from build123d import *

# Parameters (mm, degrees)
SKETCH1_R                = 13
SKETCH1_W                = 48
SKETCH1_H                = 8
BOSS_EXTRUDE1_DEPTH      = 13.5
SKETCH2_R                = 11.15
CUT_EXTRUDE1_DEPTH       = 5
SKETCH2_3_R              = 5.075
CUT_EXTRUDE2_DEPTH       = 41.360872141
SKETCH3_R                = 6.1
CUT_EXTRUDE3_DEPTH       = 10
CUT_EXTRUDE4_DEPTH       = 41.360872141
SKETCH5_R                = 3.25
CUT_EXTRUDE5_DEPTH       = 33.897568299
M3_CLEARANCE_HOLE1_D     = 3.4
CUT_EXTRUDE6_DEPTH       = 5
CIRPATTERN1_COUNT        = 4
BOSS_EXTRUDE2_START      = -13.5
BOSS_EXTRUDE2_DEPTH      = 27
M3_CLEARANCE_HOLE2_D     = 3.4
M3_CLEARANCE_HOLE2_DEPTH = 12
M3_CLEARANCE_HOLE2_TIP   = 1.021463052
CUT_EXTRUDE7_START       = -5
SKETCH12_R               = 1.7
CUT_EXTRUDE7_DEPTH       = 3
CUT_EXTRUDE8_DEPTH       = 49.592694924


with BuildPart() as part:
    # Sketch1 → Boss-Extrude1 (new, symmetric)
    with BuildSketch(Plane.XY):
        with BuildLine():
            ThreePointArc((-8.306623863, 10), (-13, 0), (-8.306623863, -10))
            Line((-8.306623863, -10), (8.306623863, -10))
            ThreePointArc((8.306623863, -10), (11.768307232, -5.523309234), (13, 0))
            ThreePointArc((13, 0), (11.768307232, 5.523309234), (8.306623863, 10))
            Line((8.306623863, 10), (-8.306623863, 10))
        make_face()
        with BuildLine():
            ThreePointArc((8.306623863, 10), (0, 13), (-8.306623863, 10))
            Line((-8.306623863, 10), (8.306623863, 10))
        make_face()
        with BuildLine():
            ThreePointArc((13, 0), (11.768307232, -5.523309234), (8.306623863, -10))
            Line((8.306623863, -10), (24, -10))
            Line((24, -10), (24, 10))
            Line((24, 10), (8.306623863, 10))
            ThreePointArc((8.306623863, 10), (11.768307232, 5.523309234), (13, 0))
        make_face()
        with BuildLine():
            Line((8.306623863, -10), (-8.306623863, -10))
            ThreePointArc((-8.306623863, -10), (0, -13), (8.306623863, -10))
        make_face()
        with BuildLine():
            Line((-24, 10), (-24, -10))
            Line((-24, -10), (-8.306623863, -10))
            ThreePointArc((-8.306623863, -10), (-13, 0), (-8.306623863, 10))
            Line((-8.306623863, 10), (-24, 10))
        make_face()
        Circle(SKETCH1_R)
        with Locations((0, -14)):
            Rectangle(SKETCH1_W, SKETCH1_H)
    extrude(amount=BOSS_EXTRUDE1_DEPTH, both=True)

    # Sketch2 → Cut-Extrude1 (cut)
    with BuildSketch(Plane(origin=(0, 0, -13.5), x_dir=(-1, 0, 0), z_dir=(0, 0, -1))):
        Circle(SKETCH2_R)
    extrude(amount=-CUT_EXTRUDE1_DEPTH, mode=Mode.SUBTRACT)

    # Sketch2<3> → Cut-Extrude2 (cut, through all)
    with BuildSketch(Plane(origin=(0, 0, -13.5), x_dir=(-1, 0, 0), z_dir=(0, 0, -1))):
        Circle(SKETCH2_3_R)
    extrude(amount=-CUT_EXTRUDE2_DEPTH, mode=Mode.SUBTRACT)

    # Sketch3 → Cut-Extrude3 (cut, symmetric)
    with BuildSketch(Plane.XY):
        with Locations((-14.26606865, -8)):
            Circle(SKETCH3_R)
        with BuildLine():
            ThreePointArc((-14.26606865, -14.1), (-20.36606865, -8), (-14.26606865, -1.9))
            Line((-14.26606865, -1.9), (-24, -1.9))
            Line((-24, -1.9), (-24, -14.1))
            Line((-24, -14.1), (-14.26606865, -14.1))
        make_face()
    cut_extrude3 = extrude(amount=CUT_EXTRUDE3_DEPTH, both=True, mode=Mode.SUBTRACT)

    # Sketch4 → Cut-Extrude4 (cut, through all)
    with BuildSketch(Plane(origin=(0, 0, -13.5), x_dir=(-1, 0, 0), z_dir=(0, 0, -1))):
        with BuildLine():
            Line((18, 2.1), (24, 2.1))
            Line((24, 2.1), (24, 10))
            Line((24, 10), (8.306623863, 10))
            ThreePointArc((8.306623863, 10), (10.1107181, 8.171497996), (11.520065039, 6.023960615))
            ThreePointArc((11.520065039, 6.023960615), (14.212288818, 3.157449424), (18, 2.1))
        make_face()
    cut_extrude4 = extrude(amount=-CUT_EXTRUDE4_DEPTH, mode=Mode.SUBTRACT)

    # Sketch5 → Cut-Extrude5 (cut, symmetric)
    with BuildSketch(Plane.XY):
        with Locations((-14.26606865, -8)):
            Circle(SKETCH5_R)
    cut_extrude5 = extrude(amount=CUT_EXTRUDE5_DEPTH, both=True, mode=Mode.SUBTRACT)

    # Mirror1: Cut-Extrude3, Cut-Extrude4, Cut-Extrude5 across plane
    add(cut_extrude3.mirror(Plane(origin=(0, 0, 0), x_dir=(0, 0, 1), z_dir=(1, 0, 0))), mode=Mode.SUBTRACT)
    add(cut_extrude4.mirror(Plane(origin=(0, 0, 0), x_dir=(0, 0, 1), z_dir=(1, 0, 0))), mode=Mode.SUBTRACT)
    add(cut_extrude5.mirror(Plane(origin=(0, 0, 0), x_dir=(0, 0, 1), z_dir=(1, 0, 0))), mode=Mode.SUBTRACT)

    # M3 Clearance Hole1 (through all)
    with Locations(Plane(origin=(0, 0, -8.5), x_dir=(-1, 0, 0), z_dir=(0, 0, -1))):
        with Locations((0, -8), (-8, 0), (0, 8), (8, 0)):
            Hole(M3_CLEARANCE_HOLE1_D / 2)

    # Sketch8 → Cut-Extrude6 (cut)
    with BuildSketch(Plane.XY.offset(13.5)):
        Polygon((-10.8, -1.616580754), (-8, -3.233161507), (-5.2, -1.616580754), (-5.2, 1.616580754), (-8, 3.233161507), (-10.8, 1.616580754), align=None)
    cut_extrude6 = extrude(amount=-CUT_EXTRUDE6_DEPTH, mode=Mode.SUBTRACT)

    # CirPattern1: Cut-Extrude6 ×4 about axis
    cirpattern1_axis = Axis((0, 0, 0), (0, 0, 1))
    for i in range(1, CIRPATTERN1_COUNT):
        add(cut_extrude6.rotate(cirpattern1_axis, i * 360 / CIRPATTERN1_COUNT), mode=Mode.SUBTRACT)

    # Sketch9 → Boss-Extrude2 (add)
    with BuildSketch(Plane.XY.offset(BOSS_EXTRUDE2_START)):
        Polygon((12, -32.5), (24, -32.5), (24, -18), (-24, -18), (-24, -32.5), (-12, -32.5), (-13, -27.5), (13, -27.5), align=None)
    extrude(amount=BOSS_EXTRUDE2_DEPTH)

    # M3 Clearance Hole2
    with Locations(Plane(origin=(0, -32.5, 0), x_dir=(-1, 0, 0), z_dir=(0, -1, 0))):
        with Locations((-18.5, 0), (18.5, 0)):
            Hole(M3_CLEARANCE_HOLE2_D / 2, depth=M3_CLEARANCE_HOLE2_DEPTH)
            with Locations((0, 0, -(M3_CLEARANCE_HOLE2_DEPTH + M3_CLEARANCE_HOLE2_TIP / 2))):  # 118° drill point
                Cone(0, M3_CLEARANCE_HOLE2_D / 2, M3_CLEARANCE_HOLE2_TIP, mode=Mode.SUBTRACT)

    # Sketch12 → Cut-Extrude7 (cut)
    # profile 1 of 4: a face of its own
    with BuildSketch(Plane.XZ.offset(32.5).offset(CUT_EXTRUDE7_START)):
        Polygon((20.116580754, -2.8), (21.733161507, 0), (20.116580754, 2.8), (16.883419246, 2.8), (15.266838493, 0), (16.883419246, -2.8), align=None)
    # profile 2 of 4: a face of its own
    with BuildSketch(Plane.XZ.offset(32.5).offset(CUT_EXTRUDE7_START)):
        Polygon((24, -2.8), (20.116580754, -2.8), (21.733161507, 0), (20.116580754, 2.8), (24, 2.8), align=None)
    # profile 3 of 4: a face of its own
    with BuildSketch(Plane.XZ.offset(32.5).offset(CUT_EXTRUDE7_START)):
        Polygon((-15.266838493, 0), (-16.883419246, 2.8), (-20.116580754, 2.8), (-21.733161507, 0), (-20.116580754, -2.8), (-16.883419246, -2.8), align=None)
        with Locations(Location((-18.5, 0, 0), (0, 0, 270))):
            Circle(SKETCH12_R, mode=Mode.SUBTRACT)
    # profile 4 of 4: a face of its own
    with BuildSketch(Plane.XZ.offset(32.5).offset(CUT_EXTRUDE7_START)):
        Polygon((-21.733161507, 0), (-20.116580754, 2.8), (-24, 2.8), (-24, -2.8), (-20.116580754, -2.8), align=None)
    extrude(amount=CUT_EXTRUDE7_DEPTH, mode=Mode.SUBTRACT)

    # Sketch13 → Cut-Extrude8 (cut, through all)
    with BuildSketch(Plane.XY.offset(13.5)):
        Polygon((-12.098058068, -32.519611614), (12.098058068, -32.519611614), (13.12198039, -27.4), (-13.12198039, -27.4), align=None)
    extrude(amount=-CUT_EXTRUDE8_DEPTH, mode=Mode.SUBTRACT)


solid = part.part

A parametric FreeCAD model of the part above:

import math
import FreeCAD as App
import Part
import Sketcher
Q = App.Units.Quantity


def add_polygon(sketch, points):
    """Adds a closed chain of lines whose ends are joined by coincident constraints."""
    first, n = sketch.GeometryCount, len(points)
    for a, b in zip(points, points[1:] + points[:1]):
        sketch.addGeometry(Part.LineSegment(App.Vector(*a, 0), App.Vector(*b, 0)), False)
    for i in range(n):
        sketch.addConstraint(Sketcher.Constraint("Coincident", first + i, 2, first + (i + 1) % n, 1))

doc = App.newDocument("Part")
body = doc.addObject("PartDesign::Body", "Body")

# Sketch on XY plane
sketch1 = body.newObject("Sketcher::SketchObject", "Sketch")
sketch1.AttachmentSupport = (doc.getObject("XY_Plane"), [""])
sketch1.MapMode = "FlatFace"
sketch1.addGeometry(Part.LineSegment(App.Vector(24, 10, 0), App.Vector(8.306624, 10, 0)), False)
sketch1.addGeometry(Part.ArcOfCircle(Part.Circle(App.Vector(0, 0, 0), App.Vector(0, 0, 1), 13), math.radians(50.284863), math.radians(129.715137)), False)
sketch1.addGeometry(Part.LineSegment(App.Vector(-8.306624, 10, 0), App.Vector(-24, 10, 0)), False)
sketch1.addGeometry(Part.LineSegment(App.Vector(-24, 10, 0), App.Vector(-24, -18, 0)), False)
sketch1.addGeometry(Part.LineSegment(App.Vector(-24, -18, 0), App.Vector(24, -18, 0)), False)
sketch1.addGeometry(Part.LineSegment(App.Vector(24, -18, 0), App.Vector(24, 10, 0)), False)
sketch1.addConstraint(Sketcher.Constraint("Coincident", 0, 2, 1, 1))
sketch1.addConstraint(Sketcher.Constraint("Coincident", 1, 2, 2, 1))
sketch1.addConstraint(Sketcher.Constraint("Coincident", 2, 2, 3, 1))
sketch1.addConstraint(Sketcher.Constraint("Coincident", 3, 2, 4, 1))
sketch1.addConstraint(Sketcher.Constraint("Coincident", 4, 2, 5, 1))
sketch1.addConstraint(Sketcher.Constraint("Coincident", 5, 2, 0, 1))
sketch1.addConstraint(Sketcher.Constraint("Horizontal", 0))
sketch1.addConstraint(Sketcher.Constraint("Horizontal", 2))
sketch1.addConstraint(Sketcher.Constraint("Vertical", 3))
sketch1.addConstraint(Sketcher.Constraint("Horizontal", 4))
sketch1.addConstraint(Sketcher.Constraint("Vertical", 5))
sketch1.addConstraint(Sketcher.Constraint("Coincident", 1, 3, -1, 1))
sketch1.addConstraint(Sketcher.Constraint("Symmetric", 2, 2, 5, 2, -2))
sketch1.addConstraint(Sketcher.Constraint("Radius", 1, 13.0))
sketch1.addConstraint(Sketcher.Constraint("DistanceX", 4, 1, 4, 2, 48.0))
sketch1.addConstraint(Sketcher.Constraint("DistanceY", 3, 2, 3, 1, 28.0))
sketch1.addConstraint(Sketcher.Constraint("DistanceY", -1, 1, 0, 2, 10.0))
pad1 = body.newObject("PartDesign::Pad", "Pad")
pad1.Profile = sketch1
pad1.Length = 27
pad1.Midplane = True

# Sketch on XY plane
sketch2 = body.newObject("Sketcher::SketchObject", "Sketch001")
sketch2.AttachmentSupport = (doc.getObject("XY_Plane"), [""])
sketch2.MapMode = "FlatFace"
sketch2.AttachmentOffset = App.Placement(App.Vector(0, 0, -13.5), App.Rotation())
sketch2.addGeometry(Part.Circle(App.Vector(0, 0, 0), App.Vector(0, 0, 1), 11.15), False)
sketch2.addConstraint(Sketcher.Constraint("Coincident", 0, 3, -1, 1))
sketch2.addConstraint(Sketcher.Constraint("Diameter", 0, 22.3))
pocket1 = body.newObject("PartDesign::Pocket", "Pocket")
pocket1.Profile = sketch2
pocket1.Length = 5
pocket1.Reversed = True

# Sketch on XY plane
sketch3 = body.newObject("Sketcher::SketchObject", "Sketch002")
sketch3.AttachmentSupport = (doc.getObject("XY_Plane"), [""])
sketch3.MapMode = "FlatFace"
sketch3.AttachmentOffset = App.Placement(App.Vector(0, 0, -13.5), App.Rotation())
sketch3.addGeometry(Part.Circle(App.Vector(0, 0, 0), App.Vector(0, 0, 1), 5.075), False)
sketch3.addConstraint(Sketcher.Constraint("Coincident", 0, 3, -1, 1))
sketch3.addConstraint(Sketcher.Constraint("Diameter", 0, 10.15))
pocket2 = body.newObject("PartDesign::Pocket", "Pocket001")
pocket2.Profile = sketch3
pocket2.Type = "ThroughAll"
pocket2.Reversed = True

# Sketch on XY plane
sketch4 = body.newObject("Sketcher::SketchObject", "Sketch003")
sketch4.AttachmentSupport = (doc.getObject("XY_Plane"), [""])
sketch4.MapMode = "FlatFace"
sketch4.addGeometry(Part.LineSegment(App.Vector(-14.266069, -1.9, 0), App.Vector(-24, -1.9, 0)), False)
sketch4.addGeometry(Part.LineSegment(App.Vector(-24, -1.9, 0), App.Vector(-24, -14.1, 0)), False)
sketch4.addGeometry(Part.LineSegment(App.Vector(-24, -14.1, 0), App.Vector(-14.266069, -14.1, 0)), False)
sketch4.addGeometry(Part.ArcOfCircle(Part.Circle(App.Vector(-14.266069, -8, 0), App.Vector(0, 0, 1), 6.1), math.radians(-90), math.radians(90)), False)
sketch4.addConstraint(Sketcher.Constraint("Coincident", 0, 2, 1, 1))
sketch4.addConstraint(Sketcher.Constraint("Coincident", 1, 2, 2, 1))
sketch4.addConstraint(Sketcher.Constraint("Tangent", 2, 2, 3, 1))
sketch4.addConstraint(Sketcher.Constraint("Tangent", 3, 2, 0, 1))
sketch4.addConstraint(Sketcher.Constraint("Horizontal", 0))
sketch4.addConstraint(Sketcher.Constraint("Vertical", 1))
sketch4.addConstraint(Sketcher.Constraint("Horizontal", 2))
sketch4.addConstraint(Sketcher.Constraint("Radius", 3, 6.1))
sketch4.addConstraint(Sketcher.Constraint("DistanceY", 3, 3, -1, 1, 8.0))
sketch4.addConstraint(Sketcher.Constraint("DistanceX", 0, 2, -1, 1, 24.0))
sketch4.addConstraint(Sketcher.Constraint("DistanceX", 0, 2, 0, 1, 9.733931))
pocket3 = body.newObject("PartDesign::Pocket", "Pocket002")
pocket3.Profile = sketch4
pocket3.Length = 20
pocket3.Midplane = True

# Sketch on XY plane
sketch5 = body.newObject("Sketcher::SketchObject", "Sketch004")
sketch5.AttachmentSupport = (doc.getObject("XY_Plane"), [""])
sketch5.MapMode = "FlatFace"
sketch5.AttachmentOffset = App.Placement(App.Vector(0, 0, -13.5), App.Rotation())
sketch5.addGeometry(Part.LineSegment(App.Vector(-18, 2.1, 0), App.Vector(-24, 2.1, 0)), False)
sketch5.addGeometry(Part.LineSegment(App.Vector(-24, 2.1, 0), App.Vector(-24, 10, 0)), False)
sketch5.addGeometry(Part.LineSegment(App.Vector(-24, 10, 0), App.Vector(-8.306624, 10, 0)), False)
sketch5.addGeometry(Part.ArcOfCircle(Part.Circle(App.Vector(0, 0, 0), App.Vector(0, 0, 1), 13), math.radians(129.715137), math.radians(152.394469)), False)
sketch5.addGeometry(Part.ArcOfCircle(Part.Circle(App.Vector(-18, 9.412385, 0), App.Vector(0, 0, 1), 7.312385), math.radians(-90), math.radians(-27.605531)), False)
sketch5.addConstraint(Sketcher.Constraint("Coincident", 0, 2, 1, 1))
sketch5.addConstraint(Sketcher.Constraint("Coincident", 1, 2, 2, 1))
sketch5.addConstraint(Sketcher.Constraint("Coincident", 2, 2, 3, 1))
sketch5.addConstraint(Sketcher.Constraint("Tangent", 3, 2, 4, 2))
sketch5.addConstraint(Sketcher.Constraint("Tangent", 4, 1, 0, 1))
sketch5.addConstraint(Sketcher.Constraint("Horizontal", 0))
sketch5.addConstraint(Sketcher.Constraint("Vertical", 1))
sketch5.addConstraint(Sketcher.Constraint("Horizontal", 2))
sketch5.addConstraint(Sketcher.Constraint("Coincident", 3, 3, -1, 1))
sketch5.addConstraint(Sketcher.Constraint("Radius", 3, 13.0))
sketch5.addConstraint(Sketcher.Constraint("DistanceX", 0, 2, 0, 1, 6.0))
sketch5.addConstraint(Sketcher.Constraint("DistanceY", 1, 1, 1, 2, 7.9))
sketch5.addConstraint(Sketcher.Constraint("DistanceX", 4, 3, -1, 1, 18.0))
sketch5.addConstraint(Sketcher.Constraint("DistanceY", -1, 1, 1, 2, 10.0))
pocket4 = body.newObject("PartDesign::Pocket", "Pocket003")
pocket4.Profile = sketch5
pocket4.Type = "ThroughAll"
pocket4.Reversed = True

# Sketch on XY plane
sketch6 = body.newObject("Sketcher::SketchObject", "Sketch005")
sketch6.AttachmentSupport = (doc.getObject("XY_Plane"), [""])
sketch6.MapMode = "FlatFace"
sketch6.addGeometry(Part.Circle(App.Vector(-14.266069, -8, 0), App.Vector(0, 0, 1), 3.25), False)
sketch6.addConstraint(Sketcher.Constraint("Diameter", 0, 6.5))
sketch6.addConstraint(Sketcher.Constraint("DistanceY", 0, 3, -1, 1, 8.0))
sketch6.addConstraint(Sketcher.Constraint("DistanceX", 0, 3, -1, 1, 14.266069))
pocket5 = body.newObject("PartDesign::Pocket", "Pocket004")
pocket5.Profile = sketch6
pocket5.Length = 67.795137
pocket5.Midplane = True
doc.recompute()

mirrored = body.newObject("PartDesign::Mirrored", "Mirrored")
mirrored.Originals = [pocket3, pocket4, pocket5]
mirrored.MirrorPlane = (doc.getObject("YZ_Plane"), [""])
body.Tip = mirrored

# Sketch on XY plane
sketch7 = body.newObject("Sketcher::SketchObject", "Sketch006")
sketch7.AttachmentSupport = (doc.getObject("XY_Plane"), [""])
sketch7.MapMode = "FlatFace"
sketch7.AttachmentOffset = App.Placement(App.Vector(0, 0, -8.5), App.Rotation())
sketch7.addGeometry(Part.Circle(App.Vector(0, -8, 0), App.Vector(0, 0, 1), 1.7), False)
sketch7.addGeometry(Part.Circle(App.Vector(8, 0, 0), App.Vector(0, 0, 1), 1.7), False)
sketch7.addGeometry(Part.Circle(App.Vector(0, 8, 0), App.Vector(0, 0, 1), 1.7), False)
sketch7.addGeometry(Part.Circle(App.Vector(-8, 0, 0), App.Vector(0, 0, 1), 1.7), False)
sketch7.addConstraint(Sketcher.Constraint("Equal", 0, 1))
sketch7.addConstraint(Sketcher.Constraint("Equal", 1, 2))
sketch7.addConstraint(Sketcher.Constraint("Equal", 2, 3))
sketch7.addConstraint(Sketcher.Constraint("Symmetric", 0, 3, 2, 3, -1, 1))
sketch7.addConstraint(Sketcher.Constraint("Symmetric", 1, 3, 3, 3, -1, 1))
sketch7.addConstraint(Sketcher.Constraint("PointOnObject", 0, 3, -2))
sketch7.addConstraint(Sketcher.Constraint("PointOnObject", 1, 3, -1))
sketch7.addConstraint(Sketcher.Constraint("Diameter", 0, 3.4))
sketch7.addConstraint(Sketcher.Constraint("DistanceY", 0, 3, -1, 1, 8.0))
sketch7.addConstraint(Sketcher.Constraint("DistanceX", -1, 1, 1, 3, 8.0))
doc.recompute()
hole = body.newObject("PartDesign::Hole", "Hole")
hole.Profile = sketch7
hole.ThreadType = "None"
hole.Diameter = 3.4
hole.DepthType = "ThroughAll"
hole.Reversed = True

# Sketch on XY plane
sketch8 = body.newObject("Sketcher::SketchObject", "Sketch007")
sketch8.AttachmentSupport = (doc.getObject("XY_Plane"), [""])
sketch8.MapMode = "FlatFace"
sketch8.AttachmentOffset = App.Placement(App.Vector(0, 0, 13.5), App.Rotation())
add_polygon(sketch8, [(-10.8, -1.616581), (-8, -3.233162), (-5.2, -1.616581), (-5.2, 1.616581), (-8, 3.233162), (-10.8, 1.616581)])  # lines 0-5
sketch8.addConstraint(Sketcher.Constraint("Vertical", 2))
sketch8.addConstraint(Sketcher.Constraint("Vertical", 5))
sketch8.addConstraint(Sketcher.Constraint("Symmetric", 0, 2, 3, 2, -1))
sketch8.addConstraint(Sketcher.Constraint("Parallel", 0, 3))
sketch8.addConstraint(Sketcher.Constraint("Parallel", 1, 4))
sketch8.addConstraint(Sketcher.Constraint("Horizontal", 2, 2, 4, 2))
sketch8.addConstraint(Sketcher.Constraint("Horizontal", 1, 2, 5, 2))
sketch8.addConstraint(Sketcher.Constraint("Angle", 0, Q("-30 deg")))
sketch8.addConstraint(Sketcher.Constraint("DistanceX", 0, 2, -1, 1, 8.0))
sketch8.addConstraint(Sketcher.Constraint("DistanceX", 1, 2, -1, 1, 5.2))
sketch8.addConstraint(Sketcher.Constraint("DistanceY", 2, 1, 2, 2, 3.233162))
pocket6 = body.newObject("PartDesign::Pocket", "Pocket005")
pocket6.Profile = sketch8
pocket6.Length = 5
doc.recompute()

polarpattern = body.newObject("PartDesign::PolarPattern", "PolarPattern")
polarpattern.Originals = [pocket6]
polarpattern.Axis = (doc.getObject("Z_Axis"), [""])
polarpattern.Angle = 360
polarpattern.Occurrences = 4
body.Tip = polarpattern

# Sketch on XY plane
sketch9 = body.newObject("Sketcher::SketchObject", "Sketch008")
sketch9.AttachmentSupport = (doc.getObject("XY_Plane"), [""])
sketch9.MapMode = "FlatFace"
sketch9.AttachmentOffset = App.Placement(App.Vector(0, 0, -13.5), App.Rotation())
add_polygon(sketch9, [(12, -32.5), (24, -32.5), (24, -18), (-24, -18), (-24, -32.5), (-12, -32.5), (-13, -27.5), (13, -27.5)])  # lines 0-7
sketch9.addConstraint(Sketcher.Constraint("Horizontal", 0))
sketch9.addConstraint(Sketcher.Constraint("Vertical", 1))
sketch9.addConstraint(Sketcher.Constraint("Horizontal", 2))
sketch9.addConstraint(Sketcher.Constraint("Vertical", 3))
sketch9.addConstraint(Sketcher.Constraint("Horizontal", 4))
sketch9.addConstraint(Sketcher.Constraint("Horizontal", 6))
sketch9.addConstraint(Sketcher.Constraint("Symmetric", 0, 2, 3, 2, -2))
sketch9.addConstraint(Sketcher.Constraint("Equal", 0, 4))
sketch9.addConstraint(Sketcher.Constraint("Equal", 5, 7))
sketch9.addConstraint(Sketcher.Constraint("DistanceX", 0, 1, 0, 2, 12.0))
sketch9.addConstraint(Sketcher.Constraint("DistanceX", 2, 2, 2, 1, 48.0))
sketch9.addConstraint(Sketcher.Constraint("DistanceX", 6, 1, 6, 2, 26.0))
sketch9.addConstraint(Sketcher.Constraint("DistanceY", 1, 1, 1, 2, 14.5))
sketch9.addConstraint(Sketcher.Constraint("DistanceY", 1, 2, -1, 1, 18.0))
sketch9.addConstraint(Sketcher.Constraint("DistanceY", 4, 2, 5, 2, 5.0))
pad2 = body.newObject("PartDesign::Pad", "Pad001")
pad2.Profile = sketch9
pad2.Length = 27

# Sketch on XZ plane
sketch10 = body.newObject("Sketcher::SketchObject", "Sketch009")
sketch10.AttachmentSupport = (doc.getObject("XZ_Plane"), [""])
sketch10.MapMode = "FlatFace"
sketch10.AttachmentOffset = App.Placement(App.Vector(0, 0, 32.5), App.Rotation())
sketch10.addGeometry(Part.Circle(App.Vector(18.5, 0, 0), App.Vector(0, 0, 1), 1.7), False)
sketch10.addGeometry(Part.Circle(App.Vector(-18.5, 0, 0), App.Vector(0, 0, 1), 1.7), False)
sketch10.addConstraint(Sketcher.Constraint("Equal", 0, 1))
sketch10.addConstraint(Sketcher.Constraint("Symmetric", 0, 3, 1, 3, -1, 1))
sketch10.addConstraint(Sketcher.Constraint("PointOnObject", 0, 3, -1))
sketch10.addConstraint(Sketcher.Constraint("Diameter", 0, 3.4))
sketch10.addConstraint(Sketcher.Constraint("DistanceX", 1, 3, 0, 3, 37.0))
doc.recompute()
hole2 = body.newObject("PartDesign::Hole", "Hole001")
hole2.Profile = sketch10
hole2.ThreadType = "None"
hole2.Diameter = 3.4
hole2.DepthType = "Dimension"
hole2.Depth = 12
hole2.DrillPoint = "Angled"
hole2.DrillPointAngle = 118

# Sketch on XZ plane
sketch11 = body.newObject("Sketcher::SketchObject", "Sketch010")
sketch11.AttachmentSupport = (doc.getObject("XZ_Plane"), [""])
sketch11.MapMode = "FlatFace"
sketch11.AttachmentOffset = App.Placement(App.Vector(0, 0, 27.5), App.Rotation())
add_polygon(sketch11, [(16.883419, 2.8), (15.266838, 0), (16.883419, -2.8), (24, -2.8), (24, 2.8)])  # lines 0-4
add_polygon(sketch11, [(-15.266838, 0), (-16.883419, 2.8), (-24, 2.8), (-24, -2.8), (-16.883419, -2.8)])  # lines 5-9
sketch11.addGeometry(Part.Circle(App.Vector(-18.5, 0, 0), App.Vector(0, 0, 1), 1.7), False)  # 10
sketch11.addConstraint(Sketcher.Constraint("Horizontal", 2))
sketch11.addConstraint(Sketcher.Constraint("Vertical", 3))
sketch11.addConstraint(Sketcher.Constraint("Horizontal", 4))
sketch11.addConstraint(Sketcher.Constraint("Horizontal", 6))
sketch11.addConstraint(Sketcher.Constraint("Vertical", 7))
sketch11.addConstraint(Sketcher.Constraint("Horizontal", 8))
sketch11.addConstraint(Sketcher.Constraint("Symmetric", 1, 2, 5, 2, -1, 1))
sketch11.addConstraint(Sketcher.Constraint("Symmetric", 3, 2, 7, 2, -1, 1))
sketch11.addConstraint(Sketcher.Constraint("Symmetric", 0, 2, 9, 2, -1, 1))
sketch11.addConstraint(Sketcher.Constraint("Symmetric", 4, 2, 5, 2, -2))
sketch11.addConstraint(Sketcher.Constraint("PointOnObject", 10, 3, -1))
sketch11.addConstraint(Sketcher.Constraint("PointOnObject", 0, 2, -1))
sketch11.addConstraint(Sketcher.Constraint("Parallel", 0, 9))
sketch11.addConstraint(Sketcher.Constraint("Diameter", 10, 3.4))
sketch11.addConstraint(Sketcher.Constraint("Angle", 0, Q("-120 deg")))
sketch11.addConstraint(Sketcher.Constraint("DistanceY", 3, 1, 3, 2, 5.6))
sketch11.addConstraint(Sketcher.Constraint("DistanceX", -1, 1, 2, 2, 24.0))
sketch11.addConstraint(Sketcher.Constraint("DistanceX", 10, 3, -1, 1, 18.5))
sketch11.addConstraint(Sketcher.Constraint("DistanceX", 2, 1, 2, 2, 7.116581))
pocket7 = body.newObject("PartDesign::Pocket", "Pocket006")
pocket7.Profile = sketch11
pocket7.Length = 3
pocket7.Reversed = True

# Sketch on XY plane
sketch12 = body.newObject("Sketcher::SketchObject", "Sketch011")
sketch12.AttachmentSupport = (doc.getObject("XY_Plane"), [""])
sketch12.MapMode = "FlatFace"
sketch12.AttachmentOffset = App.Placement(App.Vector(0, 0, 13.5), App.Rotation())
add_polygon(sketch12, [(-12.098058, -32.519612), (12.098058, -32.519612), (13.12198, -27.4), (-13.12198, -27.4)])  # lines 0-3
sketch12.addConstraint(Sketcher.Constraint("Horizontal", 0))
sketch12.addConstraint(Sketcher.Constraint("Horizontal", 2))
sketch12.addConstraint(Sketcher.Constraint("Equal", 1, 3))
sketch12.addConstraint(Sketcher.Constraint("DistanceY", 1, 2, -1, 1, 27.4))
sketch12.addConstraint(Sketcher.Constraint("Distance", 1, 5.221))
sketch12.addConstraint(Sketcher.Constraint("DistanceX", 2, 2, 2, 1, 26.243961))
sketch12.addConstraint(Sketcher.Constraint("DistanceX", 0, 1, 0, 2, 24.196116))
sketch12.addConstraint(Sketcher.Constraint("DistanceX", -1, 1, 0, 2, 12.098058))
pocket8 = body.newObject("PartDesign::Pocket", "Pocket007")
pocket8.Profile = sketch12
pocket8.Type = "ThroughAll"

doc.recompute()
